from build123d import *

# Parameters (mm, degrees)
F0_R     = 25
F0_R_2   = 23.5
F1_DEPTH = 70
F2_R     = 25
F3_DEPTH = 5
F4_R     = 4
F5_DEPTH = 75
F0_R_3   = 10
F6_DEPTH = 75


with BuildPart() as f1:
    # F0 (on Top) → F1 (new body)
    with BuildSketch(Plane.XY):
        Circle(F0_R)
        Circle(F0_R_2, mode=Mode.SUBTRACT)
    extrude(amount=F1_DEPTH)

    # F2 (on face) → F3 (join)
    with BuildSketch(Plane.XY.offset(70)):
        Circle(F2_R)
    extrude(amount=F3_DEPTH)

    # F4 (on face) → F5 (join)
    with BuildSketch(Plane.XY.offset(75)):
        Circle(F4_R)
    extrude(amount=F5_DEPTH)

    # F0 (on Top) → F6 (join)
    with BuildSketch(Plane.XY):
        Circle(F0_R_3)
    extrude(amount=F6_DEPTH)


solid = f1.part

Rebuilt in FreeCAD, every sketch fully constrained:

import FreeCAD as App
import Part
import Sketcher
from FreeCAD import Vector

doc = App.newDocument("Part")
params = doc.addObject("Spreadsheet::Sheet", "Params")
for row, (alias, value) in enumerate([
    ("sketch1_diameter", "50 mm"),
    ("sketch1_diameter2", "47 mm"),
    ("pad1_length", "70 mm"),
    ("sketch2_diameter", "50 mm"),
    ("pad2_length", "5 mm"),
    ("sketch3_diameter", "8 mm"),
    ("pad3_length", "75 mm"),
    ("sketch4_diameter", "20 mm"),
    ("pad4_length", "75 mm"),
], start=1):
    params.set(f"A{row}", alias)
    params.set(f"B{row}", "=" + value)
    params.setAlias(f"B{row}", alias)

body = doc.addObject("PartDesign::Body", "Body")

sketch1 = body.newObject("Sketcher::SketchObject", "Sketch")
sketch1.AttachmentSupport = (doc.getObject("XY_Plane"), [""])
sketch1.MapMode = "FlatFace"
sketch1.addGeometry(Part.Circle(Vector(0, 0, 0), Vector(0, 0, 1), 25), False)
sketch1.addGeometry(Part.Circle(Vector(0, 0, 0), Vector(0, 0, 1), 24), False)
sketch1.addConstraint(Sketcher.Constraint("Coincident", 0, 3, -1, 1))
sketch1.addConstraint(Sketcher.Constraint("Coincident", 1, 3, -1, 1))
sketch1.addConstraint(Sketcher.Constraint("Diameter", 0, 50.0))
sketch1.addConstraint(Sketcher.Constraint("Diameter", 1, 47.0))
sketch1.setExpression("Constraints[2]", "Params.sketch1_diameter")
sketch1.setExpression("Constraints[3]", "Params.sketch1_diameter2")
pad1 = body.newObject("PartDesign::Pad", "Pad")
pad1.Profile = sketch1
pad1.setExpression("Length", "Params.pad1_length")

sketch2 = body.newObject("Sketcher::SketchObject", "Sketch001")
sketch2.AttachmentSupport = (doc.getObject("XY_Plane"), [""])
sketch2.MapMode = "FlatFace"
sketch2.AttachmentOffset = App.Placement(Vector(0, 0, 70), App.Rotation())
sketch2.addGeometry(Part.Circle(Vector(0, 0, 0), Vector(0, 0, 1), 25), False)
sketch2.addConstraint(Sketcher.Constraint("Coincident", 0, 3, -1, 1))
sketch2.addConstraint(Sketcher.Constraint("Diameter", 0, 50.0))
sketch2.setExpression("Constraints[1]", "Params.sketch2_diameter")
pad2 = body.newObject("PartDesign::Pad", "Pad001")
pad2.Profile = sketch2
pad2.setExpression("Length", "Params.pad2_length")

sketch3 = body.newObject("Sketcher::SketchObject", "Sketch002")
sketch3.AttachmentSupport = (doc.getObject("XY_Plane"), [""])
sketch3.MapMode = "FlatFace"
sketch3.AttachmentOffset = App.Placement(Vector(0, 0, 75), App.Rotation())
sketch3.addGeometry(Part.Circle(Vector(0, 0, 0), Vector(0, 0, 1), 4), False)
sketch3.addConstraint(Sketcher.Constraint("Coincident", 0, 3, -1, 1))
sketch3.addConstraint(Sketcher.Constraint("Diameter", 0, 8.0))
sketch3.setExpression("Constraints[1]", "Params.sketch3_diameter")
pad3 = body.newObject("PartDesign::Pad", "Pad002")
pad3.Profile = sketch3
pad3.setExpression("Length", "Params.pad3_length")

sketch4 = body.newObject("Sketcher::SketchObject", "Sketch003")
sketch4.AttachmentSupport = (doc.getObject("XY_Plane"), [""])
sketch4.MapMode = "FlatFace"
sketch4.addGeometry(Part.Circle(Vector(0, 0, 0), Vector(0, 0, 1), 10), False)
sketch4.addConstraint(Sketcher.Constraint("Coincident", 0, 3, -1, 1))
sketch4.addConstraint(Sketcher.Constraint("Diameter", 0, 20.0))
sketch4.setExpression("Constraints[1]", "Params.sketch4_diameter")
pad4 = body.newObject("PartDesign::Pad", "Pad003")
pad4.Profile = sketch4
pad4.setExpression("Length", "Params.pad4_length")

doc.recompute()
